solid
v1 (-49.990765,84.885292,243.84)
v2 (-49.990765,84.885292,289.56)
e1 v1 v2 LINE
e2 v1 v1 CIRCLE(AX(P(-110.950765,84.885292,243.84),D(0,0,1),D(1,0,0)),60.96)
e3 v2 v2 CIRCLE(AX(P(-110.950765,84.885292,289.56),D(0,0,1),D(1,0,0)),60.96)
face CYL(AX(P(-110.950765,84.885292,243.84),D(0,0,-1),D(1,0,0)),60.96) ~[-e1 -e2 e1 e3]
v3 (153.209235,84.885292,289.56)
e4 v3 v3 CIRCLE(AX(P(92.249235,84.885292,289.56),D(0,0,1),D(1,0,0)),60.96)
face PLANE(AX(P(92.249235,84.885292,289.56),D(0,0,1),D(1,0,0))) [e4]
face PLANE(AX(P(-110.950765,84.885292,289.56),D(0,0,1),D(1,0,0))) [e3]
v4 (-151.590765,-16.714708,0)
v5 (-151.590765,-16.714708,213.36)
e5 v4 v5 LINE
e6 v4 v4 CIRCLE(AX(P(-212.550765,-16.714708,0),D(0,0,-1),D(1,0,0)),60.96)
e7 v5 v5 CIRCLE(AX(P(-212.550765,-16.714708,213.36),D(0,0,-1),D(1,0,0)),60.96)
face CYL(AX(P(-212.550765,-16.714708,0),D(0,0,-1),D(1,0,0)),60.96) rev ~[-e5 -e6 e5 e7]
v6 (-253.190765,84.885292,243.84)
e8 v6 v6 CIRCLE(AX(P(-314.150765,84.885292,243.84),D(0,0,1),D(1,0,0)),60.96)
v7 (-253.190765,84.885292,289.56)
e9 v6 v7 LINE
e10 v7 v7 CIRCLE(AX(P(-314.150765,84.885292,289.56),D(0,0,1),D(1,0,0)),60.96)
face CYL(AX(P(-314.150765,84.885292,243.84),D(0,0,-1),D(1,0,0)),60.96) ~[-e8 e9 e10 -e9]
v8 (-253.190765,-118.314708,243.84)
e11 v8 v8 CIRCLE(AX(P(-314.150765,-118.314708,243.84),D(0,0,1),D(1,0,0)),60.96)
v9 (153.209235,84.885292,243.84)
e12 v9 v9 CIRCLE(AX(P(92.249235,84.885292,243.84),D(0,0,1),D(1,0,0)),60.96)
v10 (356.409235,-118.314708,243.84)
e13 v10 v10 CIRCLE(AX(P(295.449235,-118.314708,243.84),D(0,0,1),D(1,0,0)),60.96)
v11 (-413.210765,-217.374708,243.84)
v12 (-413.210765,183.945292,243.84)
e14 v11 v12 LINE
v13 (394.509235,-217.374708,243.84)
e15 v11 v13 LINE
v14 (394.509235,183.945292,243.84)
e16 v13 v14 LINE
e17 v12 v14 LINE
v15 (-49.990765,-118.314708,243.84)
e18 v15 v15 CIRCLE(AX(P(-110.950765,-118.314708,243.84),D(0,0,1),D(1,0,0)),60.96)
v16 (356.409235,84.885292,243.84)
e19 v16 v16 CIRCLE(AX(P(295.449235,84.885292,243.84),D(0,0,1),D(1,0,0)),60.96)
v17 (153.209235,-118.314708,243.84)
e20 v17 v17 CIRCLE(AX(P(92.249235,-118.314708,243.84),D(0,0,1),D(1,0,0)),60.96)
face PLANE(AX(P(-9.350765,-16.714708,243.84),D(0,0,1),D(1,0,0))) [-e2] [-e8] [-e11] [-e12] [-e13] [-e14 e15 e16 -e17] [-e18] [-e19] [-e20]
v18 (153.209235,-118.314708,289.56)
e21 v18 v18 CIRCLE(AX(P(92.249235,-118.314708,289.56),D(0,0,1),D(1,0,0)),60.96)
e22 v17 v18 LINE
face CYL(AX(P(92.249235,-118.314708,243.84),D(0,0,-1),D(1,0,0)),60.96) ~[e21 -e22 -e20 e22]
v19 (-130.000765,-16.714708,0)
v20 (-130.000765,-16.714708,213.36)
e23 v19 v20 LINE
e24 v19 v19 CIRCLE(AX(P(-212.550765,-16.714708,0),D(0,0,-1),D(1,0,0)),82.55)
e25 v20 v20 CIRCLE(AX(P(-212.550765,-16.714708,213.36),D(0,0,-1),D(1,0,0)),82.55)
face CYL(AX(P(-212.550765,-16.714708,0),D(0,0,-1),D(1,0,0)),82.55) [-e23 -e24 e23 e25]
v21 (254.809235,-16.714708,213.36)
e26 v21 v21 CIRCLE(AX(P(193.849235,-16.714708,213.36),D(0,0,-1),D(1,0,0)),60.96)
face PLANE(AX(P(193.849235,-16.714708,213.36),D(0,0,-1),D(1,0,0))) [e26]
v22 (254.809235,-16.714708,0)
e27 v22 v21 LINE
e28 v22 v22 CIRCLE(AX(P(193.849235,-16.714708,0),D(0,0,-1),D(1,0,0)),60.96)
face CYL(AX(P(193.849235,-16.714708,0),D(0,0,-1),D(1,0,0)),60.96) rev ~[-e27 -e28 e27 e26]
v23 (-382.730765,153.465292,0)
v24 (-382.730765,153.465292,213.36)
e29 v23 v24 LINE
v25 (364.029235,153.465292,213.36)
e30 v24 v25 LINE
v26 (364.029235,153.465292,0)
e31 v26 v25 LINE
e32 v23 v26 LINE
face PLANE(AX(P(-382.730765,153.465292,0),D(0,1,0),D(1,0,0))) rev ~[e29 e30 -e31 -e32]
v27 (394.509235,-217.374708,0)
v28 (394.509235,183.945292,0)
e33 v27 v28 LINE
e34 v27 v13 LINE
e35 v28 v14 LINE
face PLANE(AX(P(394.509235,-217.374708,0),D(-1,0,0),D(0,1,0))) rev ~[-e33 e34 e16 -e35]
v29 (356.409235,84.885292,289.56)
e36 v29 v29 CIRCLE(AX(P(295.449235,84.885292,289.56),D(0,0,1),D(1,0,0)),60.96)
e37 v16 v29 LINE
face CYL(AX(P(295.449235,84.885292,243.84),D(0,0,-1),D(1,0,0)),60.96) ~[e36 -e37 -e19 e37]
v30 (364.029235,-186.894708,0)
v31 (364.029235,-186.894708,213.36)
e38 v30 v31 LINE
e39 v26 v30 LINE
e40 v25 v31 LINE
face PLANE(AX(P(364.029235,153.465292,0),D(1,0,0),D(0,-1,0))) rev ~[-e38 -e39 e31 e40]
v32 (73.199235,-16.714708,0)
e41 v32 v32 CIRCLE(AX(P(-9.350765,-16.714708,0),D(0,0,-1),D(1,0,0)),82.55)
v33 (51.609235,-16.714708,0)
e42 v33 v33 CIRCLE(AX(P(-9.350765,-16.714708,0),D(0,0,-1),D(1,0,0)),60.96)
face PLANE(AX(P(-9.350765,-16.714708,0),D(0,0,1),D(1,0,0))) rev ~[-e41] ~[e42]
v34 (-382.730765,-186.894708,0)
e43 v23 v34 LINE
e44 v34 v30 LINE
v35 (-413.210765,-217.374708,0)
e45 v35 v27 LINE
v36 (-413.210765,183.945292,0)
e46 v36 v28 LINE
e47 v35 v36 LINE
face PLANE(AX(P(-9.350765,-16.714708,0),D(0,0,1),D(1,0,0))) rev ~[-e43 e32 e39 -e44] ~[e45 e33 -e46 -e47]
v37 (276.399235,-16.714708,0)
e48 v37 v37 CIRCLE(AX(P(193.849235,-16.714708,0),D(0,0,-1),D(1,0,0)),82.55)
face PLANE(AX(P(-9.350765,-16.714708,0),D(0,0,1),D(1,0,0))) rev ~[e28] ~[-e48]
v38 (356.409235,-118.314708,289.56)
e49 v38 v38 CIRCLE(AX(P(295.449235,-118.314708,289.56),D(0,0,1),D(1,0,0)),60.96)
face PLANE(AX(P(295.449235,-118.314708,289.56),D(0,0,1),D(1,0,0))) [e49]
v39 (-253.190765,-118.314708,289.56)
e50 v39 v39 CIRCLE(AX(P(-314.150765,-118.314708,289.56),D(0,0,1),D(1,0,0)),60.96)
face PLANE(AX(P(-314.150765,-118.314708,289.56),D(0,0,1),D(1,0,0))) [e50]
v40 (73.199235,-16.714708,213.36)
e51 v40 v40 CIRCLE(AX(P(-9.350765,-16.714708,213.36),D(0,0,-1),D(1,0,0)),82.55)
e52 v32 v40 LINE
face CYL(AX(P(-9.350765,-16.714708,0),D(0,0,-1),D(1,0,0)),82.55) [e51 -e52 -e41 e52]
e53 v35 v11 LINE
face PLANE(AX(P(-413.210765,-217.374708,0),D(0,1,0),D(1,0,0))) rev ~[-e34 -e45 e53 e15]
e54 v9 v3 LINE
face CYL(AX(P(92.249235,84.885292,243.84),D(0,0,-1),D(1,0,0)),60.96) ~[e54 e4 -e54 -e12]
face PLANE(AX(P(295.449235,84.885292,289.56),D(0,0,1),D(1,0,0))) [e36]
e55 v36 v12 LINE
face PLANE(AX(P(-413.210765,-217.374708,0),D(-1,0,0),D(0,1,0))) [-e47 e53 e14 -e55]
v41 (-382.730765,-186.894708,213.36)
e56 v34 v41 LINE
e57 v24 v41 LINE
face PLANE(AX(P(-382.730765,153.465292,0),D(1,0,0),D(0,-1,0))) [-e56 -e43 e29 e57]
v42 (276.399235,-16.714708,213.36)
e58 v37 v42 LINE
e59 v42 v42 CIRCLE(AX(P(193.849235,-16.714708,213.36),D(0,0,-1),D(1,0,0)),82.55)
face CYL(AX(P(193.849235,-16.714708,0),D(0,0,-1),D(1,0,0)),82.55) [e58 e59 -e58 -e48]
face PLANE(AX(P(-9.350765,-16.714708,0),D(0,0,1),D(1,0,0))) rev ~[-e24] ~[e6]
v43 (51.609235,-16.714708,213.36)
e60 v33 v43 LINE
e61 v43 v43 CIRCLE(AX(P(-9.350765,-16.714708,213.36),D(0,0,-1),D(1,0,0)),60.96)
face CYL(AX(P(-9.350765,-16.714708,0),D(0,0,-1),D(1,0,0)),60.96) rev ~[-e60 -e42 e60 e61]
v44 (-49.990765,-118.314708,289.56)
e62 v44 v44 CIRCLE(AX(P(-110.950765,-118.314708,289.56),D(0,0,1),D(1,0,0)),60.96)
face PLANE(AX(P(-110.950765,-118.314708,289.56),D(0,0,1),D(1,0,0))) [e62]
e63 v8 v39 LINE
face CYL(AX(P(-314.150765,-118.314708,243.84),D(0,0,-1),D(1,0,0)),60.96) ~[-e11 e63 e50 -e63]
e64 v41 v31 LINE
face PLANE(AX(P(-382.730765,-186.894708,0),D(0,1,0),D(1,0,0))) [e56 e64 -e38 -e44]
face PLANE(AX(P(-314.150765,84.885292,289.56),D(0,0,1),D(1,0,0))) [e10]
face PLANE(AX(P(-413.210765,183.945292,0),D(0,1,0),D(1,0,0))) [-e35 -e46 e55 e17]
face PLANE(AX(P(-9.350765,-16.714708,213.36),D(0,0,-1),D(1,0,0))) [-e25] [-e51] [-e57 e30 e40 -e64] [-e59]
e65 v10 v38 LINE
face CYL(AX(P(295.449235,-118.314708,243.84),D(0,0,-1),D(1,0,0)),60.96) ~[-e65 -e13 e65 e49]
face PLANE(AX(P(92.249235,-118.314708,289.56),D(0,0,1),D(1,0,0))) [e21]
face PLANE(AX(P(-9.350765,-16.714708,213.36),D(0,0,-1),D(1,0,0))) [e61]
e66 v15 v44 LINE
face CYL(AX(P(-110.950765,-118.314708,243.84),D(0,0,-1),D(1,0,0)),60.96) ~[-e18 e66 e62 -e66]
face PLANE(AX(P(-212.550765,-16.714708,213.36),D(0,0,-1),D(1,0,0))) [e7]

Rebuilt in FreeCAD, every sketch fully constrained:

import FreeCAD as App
import Part
import Sketcher
from FreeCAD import Vector
Q = App.Units.Quantity


def add_polygon(sketch, points):
    """Adds a closed chain of lines whose ends are joined by coincident constraints."""
    first, n = sketch.GeometryCount, len(points)
    for a, b in zip(points, points[1:] + points[:1]):
        sketch.addGeometry(Part.LineSegment(App.Vector(*a, 0), App.Vector(*b, 0)), False)
    for i in range(n):
        sketch.addConstraint(Sketcher.Constraint("Coincident", first + i, 2, first + (i + 1) % n, 1))

doc = App.newDocument("Part")
params = doc.addObject("Spreadsheet::Sheet", "Params")
for row, (alias, value) in enumerate([
    ("sketch1_width", "31.8 in"),
    ("sketch1_height", "15.8 in"),
    ("pad1_length", "9.6 in"),
    ("sketch2_diameter", "4.8 in"),
    ("pad2_length", "1.8 in"),
    ("sketch3_diameter", "6.5 in"),
    ("sketch3_diameter2", "4.8 in"),
    ("sketch3_width", "29.4 in"),
    ("sketch3_height", "13.4 in"),
    ("pocket1_length", "8.4 in"),
], start=1):
    params.set(f"A{row}", alias)
    params.set(f"B{row}", "=" + value)
    params.setAlias(f"B{row}", alias)

body = doc.addObject("PartDesign::Body", "Body")

sketch1 = doc.addObject("Sketcher::SketchObject", "Sketch")
body.addObject(sketch1)
sketch1.AttachmentSupport = (doc.XY_Plane, [""])
sketch1.MapMode = "FlatFace"
add_polygon(sketch1, [(-413, 184), (-413, -217), (395, -217), (395, 184)])
sketch1.addConstraint([
    Sketcher.Constraint("Vertical", 0),
    Sketcher.Constraint("Horizontal", 1),
    Sketcher.Constraint("Vertical", 2),
    Sketcher.Constraint("Horizontal", 3),
    Sketcher.Constraint("DistanceX", 1, 1, 1, 2, Q("31.8 in")),
    Sketcher.Constraint("DistanceY", 0, 2, 0, 1, Q("15.8 in")),
    Sketcher.Constraint("DistanceY", 0, 2, -1, 1, Q("217.374708 mm")),
    Sketcher.Constraint("DistanceX", 0, 2, -1, 1, Q("413.210765 mm")),
])
sketch1.setExpression("Constraints[8]", "Params.sketch1_width")
sketch1.setExpression("Constraints[9]", "Params.sketch1_height")
pad1 = doc.addObject("PartDesign::Pad", "Pad")
body.addObject(pad1)
pad1.Profile = sketch1
pad1.setExpression("Length", "Params.pad1_length")

sketch2 = doc.addObject("Sketcher::SketchObject", "Sketch001")
body.addObject(sketch2)
sketch2.AttachmentSupport = (doc.XY_Plane, [""])
sketch2.MapMode = "FlatFace"
sketch2.AttachmentOffset = App.Placement(Vector(0, 0, 9.6 * 25.4), App.Rotation())
sketch2.addGeometry([
    Part.Circle(Vector(-314, 85, 0), Vector(0, 0, 1), 61),
    Part.Circle(Vector(-314, -118, 0), Vector(0, 0, 1), 61),
    Part.Circle(Vector(-111, 85, 0), Vector(0, 0, 1), 61),
    Part.Circle(Vector(92, 85, 0), Vector(0, 0, 1), 61),
    Part.Circle(Vector(92, -118, 0), Vector(0, 0, 1), 61),
    Part.Circle(Vector(-111, -118, 0), Vector(0, 0, 1), 61),
    Part.Circle(Vector(295, 85, 0), Vector(0, 0, 1), 61),
    Part.Circle(Vector(295, -118, 0), Vector(0, 0, 1), 61),
], False)
sketch2.addConstraint([
    Sketcher.Constraint("Equal", 0, 1),
    Sketcher.Constraint("Equal", 1, 2),
    Sketcher.Constraint("Equal", 2, 3),
    Sketcher.Constraint("Equal", 3, 4),
    Sketcher.Constraint("Equal", 4, 5),
    Sketcher.Constraint("Equal", 5, 6),
    Sketcher.Constraint("Equal", 6, 7),
    Sketcher.Constraint("Horizontal", 0, 3, 2, 3),
    Sketcher.Constraint("Horizontal", 2, 3, 3, 3),
    Sketcher.Constraint("Horizontal", 1, 3, 4, 3),
    Sketcher.Constraint("Horizontal", 4, 3, 5, 3),
    Sketcher.Constraint("Horizontal", 3, 3, 6, 3),
    Sketcher.Constraint("Horizontal", 5, 3, 7, 3),
    Sketcher.Constraint("Vertical", 0, 3, 1, 3),
    Sketcher.Constraint("Vertical", 3, 3, 4, 3),
    Sketcher.Constraint("Vertical", 2, 3, 5, 3),
    Sketcher.Constraint("Vertical", 6, 3, 7, 3),
    Sketcher.Constraint("Diameter", 0, Q("4.8 in")),
    Sketcher.Constraint("DistanceY", 1, 3, 0, 3, Q("8 in")),
    Sketcher.Constraint("DistanceX", 0, 3, 2, 3, Q("8 in")),
    Sketcher.Constraint("DistanceX", 2, 3, 3, 3, Q("8 in")),
    Sketcher.Constraint("DistanceX", 3, 3, 6, 3, Q("8 in")),
    Sketcher.Constraint("DistanceX", 0, 3, -1, 1, Q("314.150765 mm")),
    Sketcher.Constraint("DistanceY", -1, 1, 0, 3, Q("84.885292 mm")),
])
sketch2.setExpression("Constraints[17]", "Params.sketch2_diameter")
pad2 = doc.addObject("PartDesign::Pad", "Pad001")
body.addObject(pad2)
pad2.Profile = sketch2
pad2.setExpression("Length", "Params.pad2_length")

sketch3 = doc.addObject("Sketcher::SketchObject", "Sketch002")
body.addObject(sketch3)
sketch3.AttachmentSupport = (doc.XY_Plane, [""])
sketch3.MapMode = "FlatFace"
add_polygon(sketch3, [(-383, -187), (-383, 153), (364, 153), (364, -187)])
sketch3.addGeometry(Part.Circle(Vector(-213, -17, 0), Vector(0, 0, 1), 83), False)
sketch3.addGeometry(Part.Circle(Vector(-9, -17, 0), Vector(0, 0, 1), 83), False)
sketch3.addGeometry(Part.Circle(Vector(194, -17, 0), Vector(0, 0, 1), 83), False)
sketch3.addGeometry(Part.Circle(Vector(-213, -17, 0), Vector(0, 0, 1), 61), False)
sketch3.addGeometry(Part.Circle(Vector(-9, -17, 0), Vector(0, 0, 1), 61), False)
sketch3.addGeometry(Part.Circle(Vector(194, -17, 0), Vector(0, 0, 1), 61), False)
sketch3.addConstraint([
    Sketcher.Constraint("Vertical", 0),
    Sketcher.Constraint("Horizontal", 1),
    Sketcher.Constraint("Vertical", 2),
    Sketcher.Constraint("Horizontal", 3),
    Sketcher.Constraint("Coincident", 7, 3, 4, 3),
    Sketcher.Constraint("Coincident", 8, 3, 5, 3),
    Sketcher.Constraint("Coincident", 9, 3, 6, 3),
    Sketcher.Constraint("Equal", 4, 5),
    Sketcher.Constraint("Equal", 5, 6),
    Sketcher.Constraint("Equal", 7, 8),
    Sketcher.Constraint("Equal", 8, 9),
    Sketcher.Constraint("Horizontal", 4, 3, 5, 3),
    Sketcher.Constraint("Horizontal", 5, 3, 6, 3),
    Sketcher.Constraint("Diameter", 4, Q("6.5 in")),
    Sketcher.Constraint("Diameter", 7, Q("4.8 in")),
    Sketcher.Constraint("DistanceX", 1, 1, 1, 2, Q("29.4 in")),
    Sketcher.Constraint("DistanceY", 0, 1, 0, 2, Q("13.4 in")),
    Sketcher.Constraint("DistanceX", 4, 3, 5, 3, Q("8 in")),
    Sketcher.Constraint("DistanceX", 5, 3, 6, 3, Q("8 in")),
    Sketcher.Constraint("DistanceX", 0, 2, 4, 3, Q("6.7 in")),
    Sketcher.Constraint("DistanceY", 4, 3, 0, 2, Q("6.7 in")),
    Sketcher.Constraint("DistanceY", 4, 3, -1, 1, Q("16.714708 mm")),
    Sketcher.Constraint("DistanceX", 4, 3, -1, 1, Q("212.550765 mm")),
])
sketch3.setExpression("Constraints[17]", "Params.sketch3_diameter")
sketch3.setExpression("Constraints[18]", "Params.sketch3_diameter2")
sketch3.setExpression("Constraints[19]", "Params.sketch3_width")
sketch3.setExpression("Constraints[20]", "Params.sketch3_height")
pocket1 = doc.addObject("PartDesign::Pocket", "Pocket")
body.addObject(pocket1)
pocket1.Profile = sketch3
pocket1.setExpression("Length", "Params.pocket1_length")
pocket1.Reversed = True

doc.recompute()
